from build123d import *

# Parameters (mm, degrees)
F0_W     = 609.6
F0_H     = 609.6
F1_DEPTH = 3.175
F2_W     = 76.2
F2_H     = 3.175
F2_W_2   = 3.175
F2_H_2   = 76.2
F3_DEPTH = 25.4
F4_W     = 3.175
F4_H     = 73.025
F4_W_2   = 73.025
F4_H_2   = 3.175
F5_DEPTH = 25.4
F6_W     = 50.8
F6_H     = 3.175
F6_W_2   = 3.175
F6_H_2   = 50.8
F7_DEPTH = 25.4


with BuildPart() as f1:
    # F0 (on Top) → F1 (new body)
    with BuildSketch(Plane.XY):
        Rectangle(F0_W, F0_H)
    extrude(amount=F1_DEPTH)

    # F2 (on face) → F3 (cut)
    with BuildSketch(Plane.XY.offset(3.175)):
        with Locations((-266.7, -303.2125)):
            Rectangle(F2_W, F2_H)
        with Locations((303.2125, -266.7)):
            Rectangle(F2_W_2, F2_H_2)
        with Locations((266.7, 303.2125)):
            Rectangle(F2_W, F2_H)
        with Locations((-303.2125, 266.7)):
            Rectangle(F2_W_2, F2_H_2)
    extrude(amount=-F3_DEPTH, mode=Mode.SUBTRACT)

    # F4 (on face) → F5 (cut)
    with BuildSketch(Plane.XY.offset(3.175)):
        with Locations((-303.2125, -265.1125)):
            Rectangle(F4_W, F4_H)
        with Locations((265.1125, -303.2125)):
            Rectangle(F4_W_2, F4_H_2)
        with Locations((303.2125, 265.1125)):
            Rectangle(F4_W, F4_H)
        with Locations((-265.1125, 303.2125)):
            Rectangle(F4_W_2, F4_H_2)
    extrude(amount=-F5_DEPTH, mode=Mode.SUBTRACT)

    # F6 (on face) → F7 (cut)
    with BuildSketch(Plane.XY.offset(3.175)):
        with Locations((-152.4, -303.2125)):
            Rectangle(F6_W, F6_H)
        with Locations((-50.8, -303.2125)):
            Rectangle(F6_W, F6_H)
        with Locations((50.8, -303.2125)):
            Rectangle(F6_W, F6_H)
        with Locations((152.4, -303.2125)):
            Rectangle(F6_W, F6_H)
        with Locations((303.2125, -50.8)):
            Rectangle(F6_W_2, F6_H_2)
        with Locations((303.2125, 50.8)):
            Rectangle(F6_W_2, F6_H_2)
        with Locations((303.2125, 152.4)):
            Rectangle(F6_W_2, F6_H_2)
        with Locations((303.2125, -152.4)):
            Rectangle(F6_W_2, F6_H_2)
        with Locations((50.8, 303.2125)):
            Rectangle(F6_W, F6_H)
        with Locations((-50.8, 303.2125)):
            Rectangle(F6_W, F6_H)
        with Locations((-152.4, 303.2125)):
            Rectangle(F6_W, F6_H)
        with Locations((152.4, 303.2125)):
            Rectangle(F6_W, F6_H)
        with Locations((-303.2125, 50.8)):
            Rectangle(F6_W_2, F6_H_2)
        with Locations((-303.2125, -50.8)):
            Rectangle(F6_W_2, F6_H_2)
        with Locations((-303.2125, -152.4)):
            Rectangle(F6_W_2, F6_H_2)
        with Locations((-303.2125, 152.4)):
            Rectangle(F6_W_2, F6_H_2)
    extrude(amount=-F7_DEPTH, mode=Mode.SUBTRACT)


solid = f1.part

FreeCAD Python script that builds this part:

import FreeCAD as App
import Part
import Sketcher
from FreeCAD import Vector
Q = App.Units.Quantity


def add_polygon(sketch, points):
    """Adds a closed chain of lines whose ends are joined by coincident constraints."""
    first, n = sketch.GeometryCount, len(points)
    for a, b in zip(points, points[1:] + points[:1]):
        sketch.addGeometry(Part.LineSegment(App.Vector(*a, 0), App.Vector(*b, 0)), False)
    for i in range(n):
        sketch.addConstraint(Sketcher.Constraint("Coincident", first + i, 2, first + (i + 1) % n, 1))

doc = App.newDocument("Part")
body = doc.addObject("PartDesign::Body", "Body")

sketch1 = body.newObject("Sketcher::SketchObject", "Sketch")
sketch1.AttachmentSupport = (doc.getObject("XY_Plane"), [""])
sketch1.MapMode = "FlatFace"
add_polygon(sketch1, [(-305, 305), (-305, -305), (305, -305), (305, 305)])
sketch1.addConstraint(Sketcher.Constraint("Vertical", 0))
sketch1.addConstraint(Sketcher.Constraint("Horizontal", 1))
sketch1.addConstraint(Sketcher.Constraint("Vertical", 2))
sketch1.addConstraint(Sketcher.Constraint("Horizontal", 3))
sketch1.addConstraint(Sketcher.Constraint("Symmetric", 0, 2, 2, 2, -1, 1))
sketch1.addConstraint(Sketcher.Constraint("Equal", 3, 0))
sketch1.addConstraint(Sketcher.Constraint("DistanceX", 1, 1, 1, 2, Q("24 in")))
pad1 = body.newObject("PartDesign::Pad", "Pad")
pad1.Profile = sketch1
pad1.Length = Q("0.125 in")

sketch2 = body.newObject("Sketcher::SketchObject", "Sketch001")
sketch2.AttachmentSupport = (doc.getObject("XY_Plane"), [""])
sketch2.MapMode = "FlatFace"
sketch2.AttachmentOffset = App.Placement(Vector(0, 0, 0.125 * 25.4), App.Rotation())
add_polygon(sketch2, [(-304.8, -301.6), (-304.8, -304.8), (-228.6, -304.8), (-228.6, -301.6)])
add_polygon(sketch2, [(301.6, -228.6), (301.6, -304.8), (304.8, -304.8), (304.8, -228.6)])
add_polygon(sketch2, [(228.6, 304.8), (228.6, 301.6), (304.8, 301.6), (304.8, 304.8)])
add_polygon(sketch2, [(-304.8, 304.8), (-304.8, 228.6), (-301.6, 228.6), (-301.6, 304.8)])
sketch2.addConstraint(Sketcher.Constraint("Vertical", 0))
sketch2.addConstraint(Sketcher.Constraint("Horizontal", 1))
sketch2.addConstraint(Sketcher.Constraint("Vertical", 2))
sketch2.addConstraint(Sketcher.Constraint("Horizontal", 3))
sketch2.addConstraint(Sketcher.Constraint("Vertical", 4))
sketch2.addConstraint(Sketcher.Constraint("Horizontal", 5))
sketch2.addConstraint(Sketcher.Constraint("Vertical", 6))
sketch2.addConstraint(Sketcher.Constraint("Horizontal", 7))
sketch2.addConstraint(Sketcher.Constraint("Vertical", 8))
sketch2.addConstraint(Sketcher.Constraint("Horizontal", 9))
sketch2.addConstraint(Sketcher.Constraint("Vertical", 10))
sketch2.addConstraint(Sketcher.Constraint("Horizontal", 11))
sketch2.addConstraint(Sketcher.Constraint("Vertical", 12))
sketch2.addConstraint(Sketcher.Constraint("Horizontal", 13))
sketch2.addConstraint(Sketcher.Constraint("Vertical", 14))
sketch2.addConstraint(Sketcher.Constraint("Horizontal", 15))
sketch2.addConstraint(Sketcher.Constraint("Symmetric", 2, 2, 8, 2, -1, 1))
sketch2.addConstraint(Sketcher.Constraint("Symmetric", 0, 2, 10, 2, -1, 1))
sketch2.addConstraint(Sketcher.Constraint("Symmetric", 6, 2, 12, 2, -1, 1))
sketch2.addConstraint(Sketcher.Constraint("Symmetric", 4, 2, 14, 2, -1, 1))
sketch2.addConstraint(Sketcher.Constraint("Symmetric", 0, 2, 5, 2, -2))
sketch2.addConstraint(Sketcher.Constraint("Equal", 15, 0))
sketch2.addConstraint(Sketcher.Constraint("Equal", 11, 4))
sketch2.addConstraint(Sketcher.Constraint("DistanceX", 1, 1, 1, 2, Q("3 in")))
sketch2.addConstraint(Sketcher.Constraint("DistanceX", 0, 2, -1, 1, Q("12 in")))
sketch2.addConstraint(Sketcher.Constraint("DistanceY", 0, 2, -1, 1, Q("12 in")))
sketch2.addConstraint(Sketcher.Constraint("DistanceX", 5, 1, 5, 2, Q("0.125 in")))
pocket1 = body.newObject("PartDesign::Pocket", "Pocket")
pocket1.Profile = sketch2
pocket1.Length = Q("1 in")

sketch3 = body.newObject("Sketcher::SketchObject", "Sketch002")
sketch3.AttachmentSupport = (doc.getObject("XY_Plane"), [""])
sketch3.MapMode = "FlatFace"
sketch3.AttachmentOffset = App.Placement(Vector(0, 0, 0.125 * 25.4), App.Rotation())
add_polygon(sketch3, [(-304.8, -228.6), (-304.8, -301.6), (-301.6, -301.6), (-301.6, -228.6)])
add_polygon(sketch3, [(228.6, -301.6), (228.6, -304.8), (301.6, -304.8), (301.6, -301.6)])
add_polygon(sketch3, [(301.6, 301.6), (301.6, 228.6), (304.8, 228.6), (304.8, 301.6)])
add_polygon(sketch3, [(-301.6, 304.8), (-301.6, 301.6), (-228.6, 301.6), (-228.6, 304.8)])
sketch3.addConstraint(Sketcher.Constraint("Vertical", 0))
sketch3.addConstraint(Sketcher.Constraint("Horizontal", 1))
sketch3.addConstraint(Sketcher.Constraint("Vertical", 2))
sketch3.addConstraint(Sketcher.Constraint("Horizontal", 3))
sketch3.addConstraint(Sketcher.Constraint("Vertical", 4))
sketch3.addConstraint(Sketcher.Constraint("Horizontal", 5))
sketch3.addConstraint(Sketcher.Constraint("Vertical", 6))
sketch3.addConstraint(Sketcher.Constraint("Horizontal", 7))
sketch3.addConstraint(Sketcher.Constraint("Vertical", 8))
sketch3.addConstraint(Sketcher.Constraint("Horizontal", 9))
sketch3.addConstraint(Sketcher.Constraint("Vertical", 10))
sketch3.addConstraint(Sketcher.Constraint("Horizontal", 11))
sketch3.addConstraint(Sketcher.Constraint("Vertical", 12))
sketch3.addConstraint(Sketcher.Constraint("Horizontal", 13))
sketch3.addConstraint(Sketcher.Constraint("Vertical", 14))
sketch3.addConstraint(Sketcher.Constraint("Horizontal", 15))
sketch3.addConstraint(Sketcher.Constraint("Symmetric", 2, 2, 8, 2, -1, 1))
sketch3.addConstraint(Sketcher.Constraint("Symmetric", 0, 2, 10, 2, -1, 1))
sketch3.addConstraint(Sketcher.Constraint("Symmetric", 6, 2, 12, 2, -1, 1))
sketch3.addConstraint(Sketcher.Constraint("Symmetric", 4, 2, 14, 2, -1, 1))
sketch3.addConstraint(Sketcher.Constraint("Symmetric", 1, 2, 6, 2, -2))
sketch3.addConstraint(Sketcher.Constraint("Equal", 15, 0))
sketch3.addConstraint(Sketcher.Constraint("Equal", 11, 4))
sketch3.addConstraint(Sketcher.Constraint("DistanceX", 0, 2, -1, 1, Q("12 in")))
sketch3.addConstraint(Sketcher.Constraint("DistanceY", 2, 2, -1, 1, Q("9 in")))
sketch3.addConstraint(Sketcher.Constraint("DistanceX", -1, 1, 4, 2, Q("9 in")))
sketch3.addConstraint(Sketcher.Constraint("DistanceX", 1, 1, 1, 2, Q("0.125 in")))
pocket2 = body.newObject("PartDesign::Pocket", "Pocket001")
pocket2.Profile = sketch3
pocket2.Length = Q("1 in")

sketch4 = body.newObject("Sketcher::SketchObject", "Sketch003")
sketch4.AttachmentSupport = (doc.getObject("XY_Plane"), [""])
sketch4.MapMode = "FlatFace"
sketch4.AttachmentOffset = App.Placement(Vector(0, 0, 0.125 * 25.4), App.Rotation())
add_polygon(sketch4, [(-177.8, -301.6), (-177.8, -304.8), (-127, -304.8), (-127, -301.6)])
add_polygon(sketch4, [(-76.2, -301.6), (-76.2, -304.8), (-25.4, -304.8), (-25.4, -301.6)])
add_polygon(sketch4, [(25.4, -301.6), (25.4, -304.8), (76.2, -304.8), (76.2, -301.6)])
add_polygon(sketch4, [(127, -301.6), (127, -304.8), (177.8, -304.8), (177.8, -301.6)])
add_polygon(sketch4, [(301.6, -25.4), (301.6, -76.2), (304.8, -76.2), (304.8, -25.4)])
add_polygon(sketch4, [(301.6, 76.2), (301.6, 25.4), (304.8, 25.4), (304.8, 76.2)])
add_polygon(sketch4, [(301.6, 177.8), (301.6, 127), (304.8, 127), (304.8, 177.8)])
add_polygon(sketch4, [(301.6, -127), (301.6, -177.8), (304.8, -177.8), (304.8, -127)])
add_polygon(sketch4, [(25.4, 304.8), (25.4, 301.6), (76.2, 301.6), (76.2, 304.8)])
add_polygon(sketch4, [(-76.2, 304.8), (-76.2, 301.6), (-25.4, 301.6), (-25.4, 304.8)])
add_polygon(sketch4, [(-177.8, 304.8), (-177.8, 301.6), (-127, 301.6), (-127, 304.8)])
add_polygon(sketch4, [(127, 304.8), (127, 301.6), (177.8, 301.6), (177.8, 304.8)])
add_polygon(sketch4, [(-304.8, 76.2), (-304.8, 25.4), (-301.6, 25.4), (-301.6, 76.2)])
add_polygon(sketch4, [(-304.8, -25.4), (-304.8, -76.2), (-301.6, -76.2), (-301.6, -25.4)])
add_polygon(sketch4, [(-304.8, -127), (-304.8, -177.8), (-301.6, -177.8), (-301.6, -127)])
add_polygon(sketch4, [(-304.8, 177.8), (-304.8, 127), (-301.6, 127), (-301.6, 177.8)])
sketch4.addConstraint(Sketcher.Constraint("Vertical", 0))
sketch4.addConstraint(Sketcher.Constraint("Horizontal", 1))
sketch4.addConstraint(Sketcher.Constraint("Vertical", 2))
sketch4.addConstraint(Sketcher.Constraint("Horizontal", 3))
sketch4.addConstraint(Sketcher.Constraint("Vertical", 4))
sketch4.addConstraint(Sketcher.Constraint("Horizontal", 5))
sketch4.addConstraint(Sketcher.Constraint("Vertical", 6))
sketch4.addConstraint(Sketcher.Constraint("Horizontal", 7))
sketch4.addConstraint(Sketcher.Constraint("Vertical", 8))
sketch4.addConstraint(Sketcher.Constraint("Horizontal", 9))
sketch4.addConstraint(Sketcher.Constraint("Vertical", 10))
sketch4.addConstraint(Sketcher.Constraint("Horizontal", 11))
sketch4.addConstraint(Sketcher.Constraint("Vertical", 12))
sketch4.addConstraint(Sketcher.Constraint("Horizontal", 13))
sketch4.addConstraint(Sketcher.Constraint("Vertical", 14))
sketch4.addConstraint(Sketcher.Constraint("Horizontal", 15))
sketch4.addConstraint(Sketcher.Constraint("Vertical", 16))
sketch4.addConstraint(Sketcher.Constraint("Horizontal", 17))
sketch4.addConstraint(Sketcher.Constraint("Vertical", 18))
sketch4.addConstraint(Sketcher.Constraint("Horizontal", 19))
sketch4.addConstraint(Sketcher.Constraint("Vertical", 20))
sketch4.addConstraint(Sketcher.Constraint("Horizontal", 21))
sketch4.addConstraint(Sketcher.Constraint("Vertical", 22))
sketch4.addConstraint(Sketcher.Constraint("Horizontal", 23))
sketch4.addConstraint(Sketcher.Constraint("Vertical", 24))
sketch4.addConstraint(Sketcher.Constraint("Horizontal", 25))
sketch4.addConstraint(Sketcher.Constraint("Vertical", 26))
sketch4.addConstraint(Sketcher.Constraint("Horizontal", 27))
sketch4.addConstraint(Sketcher.Constraint("Vertical", 28))
sketch4.addConstraint(Sketcher.Constraint("Horizontal", 29))
sketch4.addConstraint(Sketcher.Constraint("Vertical", 30))
sketch4.addConstraint(Sketcher.Constraint("Horizontal", 31))
sketch4.addConstraint(Sketcher.Constraint("Vertical", 32))
sketch4.addConstraint(Sketcher.Constraint("Horizontal", 33))
sketch4.addConstraint(Sketcher.Constraint("Vertical", 34))
sketch4.addConstraint(Sketcher.Constraint("Horizontal", 35))
sketch4.addConstraint(Sketcher.Constraint("Vertical", 36))
sketch4.addConstraint(Sketcher.Constraint("Horizontal", 37))
sketch4.addConstraint(Sketcher.Constraint("Vertical", 38))
sketch4.addConstraint(Sketcher.Constraint("Horizontal", 39))
sketch4.addConstraint(Sketcher.Constraint("Vertical", 40))
sketch4.addConstraint(Sketcher.Constraint("Horizontal", 41))
sketch4.addConstraint(Sketcher.Constraint("Vertical", 42))
sketch4.addConstraint(Sketcher.Constraint("Horizontal", 43))
sketch4.addConstraint(Sketcher.Constraint("Vertical", 44))
sketch4.addConstraint(Sketcher.Constraint("Horizontal", 45))
sketch4.addConstraint(Sketcher.Constraint("Vertical", 46))
sketch4.addConstraint(Sketcher.Constraint("Horizontal", 47))
sketch4.addConstraint(Sketcher.Constraint("Vertical", 48))
sketch4.addConstraint(Sketcher.Constraint("Horizontal", 49))
sketch4.addConstraint(Sketcher.Constraint("Vertical", 50))
sketch4.addConstraint(Sketcher.Constraint("Horizontal", 51))
sketch4.addConstraint(Sketcher.Constraint("Vertical", 52))
sketch4.addConstraint(Sketcher.Constraint("Horizontal", 53))
sketch4.addConstraint(Sketcher.Constraint("Vertical", 54))
sketch4.addConstraint(Sketcher.Constraint("Horizontal", 55))
sketch4.addConstraint(Sketcher.Constraint("Vertical", 56))
sketch4.addConstraint(Sketcher.Constraint("Horizontal", 57))
sketch4.addConstraint(Sketcher.Constraint("Vertical", 58))
sketch4.addConstraint(Sketcher.Constraint("Horizontal", 59))
sketch4.addConstraint(Sketcher.Constraint("Vertical", 60))
sketch4.addConstraint(Sketcher.Constraint("Horizontal", 61))
sketch4.addConstraint(Sketcher.Constraint("Vertical", 62))
sketch4.addConstraint(Sketcher.Constraint("Horizontal", 63))
sketch4.addConstraint(Sketcher.Constraint("Symmetric", 6, 2, 32, 2, -1, 1))
sketch4.addConstraint(Sketcher.Constraint("Symmetric", 4, 2, 34, 2, -1, 1))
sketch4.addConstraint(Sketcher.Constraint("Symmetric", 10, 2, 36, 2, -1, 1))
sketch4.addConstraint(Sketcher.Constraint("Symmetric", 8, 2, 38, 2, -1, 1))
sketch4.addConstraint(Sketcher.Constraint("Symmetric", 14, 2, 40, 2, -1, 1))
sketch4.addConstraint(Sketcher.Constraint("Symmetric", 12, 2, 42, 2, -1, 1))
sketch4.addConstraint(Sketcher.Constraint("Symmetric", 2, 2, 44, 2, -1, 1))
sketch4.addConstraint(Sketcher.Constraint("Symmetric", 0, 2, 46, 2, -1, 1))
sketch4.addConstraint(Sketcher.Constraint("Symmetric", 18, 2, 48, 2, -1, 1))
sketch4.addConstraint(Sketcher.Constraint("Symmetric", 16, 2, 50, 2, -1, 1))
sketch4.addConstraint(Sketcher.Constraint("Symmetric", 22, 2, 52, 2, -1, 1))
sketch4.addConstraint(Sketcher.Constraint("Symmetric", 20, 2, 54, 2, -1, 1))
sketch4.addConstraint(Sketcher.Constraint("Symmetric", 26, 2, 56, 2, -1, 1))
sketch4.addConstraint(Sketcher.Constraint("Symmetric", 24, 2, 58, 2, -1, 1))
sketch4.addConstraint(Sketcher.Constraint("Symmetric", 30, 2, 60, 2, -1, 1))
sketch4.addConstraint(Sketcher.Constraint("Symmetric", 28, 2, 62, 2, -1, 1))
sketch4.addConstraint(Sketcher.Constraint("Symmetric", 5, 2, 8, 2, -2))
sketch4.addConstraint(Sketcher.Constraint("Symmetric", 7, 2, 10, 2, -2))
sketch4.addConstraint(Sketcher.Constraint("Symmetric", 1, 2, 12, 2, -2))
sketch4.addConstraint(Sketcher.Constraint("Symmetric", 3, 2, 14, 2, -2))
sketch4.addConstraint(Sketcher.Constraint("Symmetric", 21, 2, 48, 2, -2))
sketch4.addConstraint(Sketcher.Constraint("Symmetric", 23, 2, 50, 2, -2))
sketch4.addConstraint(Sketcher.Constraint("Symmetric", 29, 2, 56, 2, -2))
sketch4.addConstraint(Sketcher.Constraint("Symmetric", 31, 2, 58, 2, -2))
sketch4.addConstraint(Sketcher.Constraint("Horizontal", 1, 2, 4, 2))
sketch4.addConstraint(Sketcher.Constraint("Horizontal", 3, 2, 6, 2))
sketch4.addConstraint(Sketcher.Constraint("Vertical", 23, 2, 24, 2))
sketch4.addConstraint(Sketcher.Constraint("Vertical", 22, 2, 25, 2))
sketch4.addConstraint(Sketcher.Constraint("Equal", 3, 5))
sketch4.addConstraint(Sketcher.Constraint("Equal", 63, 0))
sketch4.addConstraint(Sketcher.Constraint("Equal", 47, 16))
sketch4.addConstraint(Sketcher.Constraint("Equal", 22, 24))
sketch4.addConstraint(Sketcher.Constraint("DistanceX", 1, 1, 1, 2, Q("2 in")))
sketch4.addConstraint(Sketcher.Constraint("DistanceX", 0, 2, -1, 1, Q("7 in")))
sketch4.addConstraint(Sketcher.Constraint("DistanceY", 0, 2, -1, 1, Q("12 in")))
sketch4.addConstraint(Sketcher.Constraint("DistanceX", 4, 2, -1, 1, Q("3 in")))
sketch4.addConstraint(Sketcher.Constraint("DistanceY", 16, 2, -1, 1, Q("3 in")))
sketch4.addConstraint(Sketcher.Constraint("DistanceX", -1, 1, 17, 2, Q("12 in")))
sketch4.addConstraint(Sketcher.Constraint("DistanceY", -1, 1, 24, 2, Q("5 in")))
sketch4.addConstraint(Sketcher.Constraint("DistanceX", 17, 1, 17, 2, Q("0.125 in")))
pocket3 = body.newObject("PartDesign::Pocket", "Pocket002")
pocket3.Profile = sketch4
pocket3.Length = Q("1 in")

doc.recompute()
